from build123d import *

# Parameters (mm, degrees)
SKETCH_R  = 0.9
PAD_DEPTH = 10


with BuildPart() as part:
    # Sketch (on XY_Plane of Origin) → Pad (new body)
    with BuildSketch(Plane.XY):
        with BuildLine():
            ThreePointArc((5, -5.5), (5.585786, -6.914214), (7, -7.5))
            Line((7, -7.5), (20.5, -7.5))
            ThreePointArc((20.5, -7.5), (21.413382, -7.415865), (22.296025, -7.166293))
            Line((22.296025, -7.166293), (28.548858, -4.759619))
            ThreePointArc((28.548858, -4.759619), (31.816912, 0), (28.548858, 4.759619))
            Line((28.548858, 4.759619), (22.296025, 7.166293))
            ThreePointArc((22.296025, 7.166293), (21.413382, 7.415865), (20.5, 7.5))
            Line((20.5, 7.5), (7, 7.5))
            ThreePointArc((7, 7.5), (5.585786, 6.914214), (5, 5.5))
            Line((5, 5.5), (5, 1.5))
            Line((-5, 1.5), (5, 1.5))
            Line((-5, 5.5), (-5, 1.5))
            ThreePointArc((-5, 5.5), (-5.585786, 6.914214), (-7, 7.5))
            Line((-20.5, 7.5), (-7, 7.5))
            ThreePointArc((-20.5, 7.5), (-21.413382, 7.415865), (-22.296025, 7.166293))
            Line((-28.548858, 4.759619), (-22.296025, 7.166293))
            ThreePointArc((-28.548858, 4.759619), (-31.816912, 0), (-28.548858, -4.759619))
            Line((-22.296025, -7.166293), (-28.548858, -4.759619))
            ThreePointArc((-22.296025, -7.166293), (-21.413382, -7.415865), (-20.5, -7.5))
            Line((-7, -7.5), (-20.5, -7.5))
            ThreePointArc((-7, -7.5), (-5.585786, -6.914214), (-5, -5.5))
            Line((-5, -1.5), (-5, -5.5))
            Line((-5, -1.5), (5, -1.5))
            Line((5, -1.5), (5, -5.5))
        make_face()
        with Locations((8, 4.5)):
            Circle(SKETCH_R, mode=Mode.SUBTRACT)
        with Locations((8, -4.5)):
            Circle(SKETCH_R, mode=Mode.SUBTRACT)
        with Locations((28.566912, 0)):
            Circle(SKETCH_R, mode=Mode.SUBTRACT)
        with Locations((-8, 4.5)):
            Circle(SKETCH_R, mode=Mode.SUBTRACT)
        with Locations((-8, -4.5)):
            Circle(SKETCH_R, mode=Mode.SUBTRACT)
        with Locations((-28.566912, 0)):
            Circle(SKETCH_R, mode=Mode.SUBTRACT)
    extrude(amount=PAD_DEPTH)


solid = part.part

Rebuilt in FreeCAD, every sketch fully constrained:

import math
import FreeCAD as App
import Part
import Sketcher

doc = App.newDocument("Part")
body = doc.addObject("PartDesign::Body", "Body")

# Sketch on XY plane
sketch1 = body.newObject("Sketcher::SketchObject", "Sketch")
sketch1.AttachmentSupport = (doc.getObject("XY_Plane"), [""])
sketch1.MapMode = "FlatFace"
sketch1.addGeometry([
    Part.ArcOfCircle(Part.Circle(App.Vector(7, -5.5, 0), App.Vector(0, 0, 1), 2), math.radians(180), math.radians(270)),  # 0
    Part.LineSegment(App.Vector(7, -7.5, 0), App.Vector(20.5, -7.5, 0)),  # 1
    Part.ArcOfCircle(Part.Circle(App.Vector(20.5, -2.5, 0), App.Vector(0, 0, 1), 5), math.radians(-90), math.radians(-69)),  # 2
    Part.LineSegment(App.Vector(22.3, -7.2, 0), App.Vector(28.5, -4.8, 0)),  # 3
    Part.ArcOfCircle(Part.Circle(App.Vector(26.7, 0, 0), App.Vector(0, 0, 1), 5.1), math.radians(-69), math.radians(69)),  # 4
    Part.LineSegment(App.Vector(28.5, 4.8, 0), App.Vector(22.3, 7.2, 0)),  # 5
    Part.ArcOfCircle(Part.Circle(App.Vector(20.5, 2.5, 0), App.Vector(0, 0, 1), 5), math.radians(69), math.radians(90)),  # 6
    Part.LineSegment(App.Vector(20.5, 7.5, 0), App.Vector(7, 7.5, 0)),  # 7
    Part.ArcOfCircle(Part.Circle(App.Vector(7, 5.5, 0), App.Vector(0, 0, 1), 2), math.radians(90), math.radians(180)),  # 8
    Part.LineSegment(App.Vector(5, 5.5, 0), App.Vector(5, 1.5, 0)),  # 9
    Part.LineSegment(App.Vector(5, 1.5, 0), App.Vector(-5, 1.5, 0)),  # 10
    Part.LineSegment(App.Vector(-5, 1.5, 0), App.Vector(-5, 5.5, 0)),  # 11
    Part.ArcOfCircle(Part.Circle(App.Vector(-7, 5.5, 0), App.Vector(0, 0, 1), 2), math.radians(0), math.radians(90)),  # 12
    Part.LineSegment(App.Vector(-7, 7.5, 0), App.Vector(-20.5, 7.5, 0)),  # 13
    Part.ArcOfCircle(Part.Circle(App.Vector(-20.5, 2.5, 0), App.Vector(0, 0, 1), 5), math.radians(90), math.radians(111)),  # 14
    Part.LineSegment(App.Vector(-22.3, 7.2, 0), App.Vector(-28.5, 4.8, 0)),  # 15
    Part.ArcOfCircle(Part.Circle(App.Vector(-26.7, 0, 0), App.Vector(0, 0, 1), 5.1), math.radians(111), math.radians(249)),  # 16
    Part.LineSegment(App.Vector(-28.5, -4.8, 0), App.Vector(-22.3, -7.2, 0)),  # 17
    Part.ArcOfCircle(Part.Circle(App.Vector(-20.5, -2.5, 0), App.Vector(0, 0, 1), 5), math.radians(-111), math.radians(-90)),  # 18
    Part.LineSegment(App.Vector(-20.5, -7.5, 0), App.Vector(-7, -7.5, 0)),  # 19
    Part.ArcOfCircle(Part.Circle(App.Vector(-7, -5.5, 0), App.Vector(0, 0, 1), 2), math.radians(-90), math.radians(0)),  # 20
    Part.LineSegment(App.Vector(-5, -5.5, 0), App.Vector(-5, -1.5, 0)),  # 21
    Part.LineSegment(App.Vector(-5, -1.5, 0), App.Vector(5, -1.5, 0)),  # 22
    Part.LineSegment(App.Vector(5, -1.5, 0), App.Vector(5, -5.5, 0)),  # 23
    Part.Circle(App.Vector(-8, -4.5, 0), App.Vector(0, 0, 1), 0.9),  # 24
    Part.Circle(App.Vector(8, -4.5, 0), App.Vector(0, 0, 1), 0.9),  # 25
    Part.Circle(App.Vector(-28.6, 0, 0), App.Vector(0, 0, 1), 0.9),  # 26
    Part.Circle(App.Vector(-8, 4.5, 0), App.Vector(0, 0, 1), 0.9),  # 27
    Part.Circle(App.Vector(28.6, 0, 0), App.Vector(0, 0, 1), 0.9),  # 28
    Part.Circle(App.Vector(8, 4.5, 0), App.Vector(0, 0, 1), 0.9),  # 29
], False)
sketch1.addConstraint([
    Sketcher.Constraint("Tangent", 0, 2, 1, 1),
    Sketcher.Constraint("Tangent", 1, 2, 2, 1),
    Sketcher.Constraint("Tangent", 2, 2, 3, 1),
    Sketcher.Constraint("Tangent", 3, 2, 4, 1),
    Sketcher.Constraint("Tangent", 4, 2, 5, 1),
    Sketcher.Constraint("Tangent", 5, 2, 6, 1),
    Sketcher.Constraint("Tangent", 6, 2, 7, 1),
    Sketcher.Constraint("Tangent", 7, 2, 8, 1),
    Sketcher.Constraint("Tangent", 8, 2, 9, 1),
    Sketcher.Constraint("Coincident", 9, 2, 10, 1),
    Sketcher.Constraint("Coincident", 10, 2, 11, 1),
    Sketcher.Constraint("Tangent", 11, 2, 12, 1),
    Sketcher.Constraint("Tangent", 12, 2, 13, 1),
    Sketcher.Constraint("Tangent", 13, 2, 14, 1),
    Sketcher.Constraint("Tangent", 14, 2, 15, 1),
    Sketcher.Constraint("Tangent", 15, 2, 16, 1),
    Sketcher.Constraint("Tangent", 16, 2, 17, 1),
    Sketcher.Constraint("Tangent", 17, 2, 18, 1),
    Sketcher.Constraint("Tangent", 18, 2, 19, 1),
    Sketcher.Constraint("Tangent", 19, 2, 20, 1),
    Sketcher.Constraint("Tangent", 20, 2, 21, 1),
    Sketcher.Constraint("Coincident", 21, 2, 22, 1),
    Sketcher.Constraint("Coincident", 22, 2, 23, 1),
    Sketcher.Constraint("Tangent", 23, 2, 0, 1),
    Sketcher.Constraint("Horizontal", 1),
    Sketcher.Constraint("Horizontal", 7),
    Sketcher.Constraint("Vertical", 9),
    Sketcher.Constraint("Horizontal", 10),
    Sketcher.Constraint("Vertical", 11),
    Sketcher.Constraint("Horizontal", 13),
    Sketcher.Constraint("Horizontal", 19),
    Sketcher.Constraint("Vertical", 21),
    Sketcher.Constraint("Horizontal", 22),
    Sketcher.Constraint("Vertical", 23),
    Sketcher.Constraint("Equal", 2, 6),
    Sketcher.Constraint("Equal", 0, 8),
    Sketcher.Constraint("Equal", 8, 12),
    Sketcher.Constraint("Equal", 6, 14),
    Sketcher.Constraint("Equal", 4, 16),
    Sketcher.Constraint("Equal", 14, 18),
    Sketcher.Constraint("Equal", 12, 20),
    Sketcher.Constraint("Equal", 24, 25),
    Sketcher.Constraint("Equal", 25, 26),
    Sketcher.Constraint("Equal", 26, 27),
    Sketcher.Constraint("Equal", 27, 28),
    Sketcher.Constraint("Equal", 28, 29),
    Sketcher.Constraint("Symmetric", 0, 3, 12, 3, -1, 1),
    Sketcher.Constraint("Symmetric", 4, 3, 16, 3, -1, 1),
    Sketcher.Constraint("Symmetric", 6, 3, 18, 3, -1, 1),
    Sketcher.Constraint("Symmetric", 25, 3, 27, 3, -1, 1),
    Sketcher.Constraint("Symmetric", 26, 3, 28, 3, -1, 1),
    Sketcher.Constraint("Symmetric", 24, 3, 29, 3, -1, 1),
    Sketcher.Constraint("Symmetric", 9, 2, 21, 2, -1, 1),
    Sketcher.Constraint("Symmetric", 8, 3, 12, 3, -2),
    Sketcher.Constraint("Symmetric", 24, 3, 25, 3, -2),
    Sketcher.Constraint("Symmetric", 5, 2, 14, 2, -2),
    Sketcher.Constraint("PointOnObject", 26, 3, -1),
    Sketcher.Constraint("Parallel", 3, 15),
    Sketcher.Constraint("Radius", 0, 1.999999),
    Sketcher.Constraint("Diameter", 24, 1.8),
    Sketcher.Constraint("Radius", 4, 5.1),
    Sketcher.Constraint("DistanceX", 10, 2, 10, 1, 10.0),
    Sketcher.Constraint("DistanceY", 9, 2, 9, 1, 4.0),
    Sketcher.Constraint("DistanceX", 1, 1, 1, 2, 13.5),
    Sketcher.Constraint("DistanceX", 24, 3, -1, 1, 8.0),
    Sketcher.Constraint("DistanceY", 20, 3, 24, 3, 1.000001),
    Sketcher.Constraint("DistanceY", 24, 3, 12, 3, 10.000001),
    Sketcher.Constraint("Distance", 3, 6.7),
    Sketcher.Constraint("DistanceX", 26, 3, 16, 3, 1.85),
    Sketcher.Constraint("Radius", 2, 5.000016),
])
pad1 = body.newObject("PartDesign::Pad", "Pad")
pad1.Profile = sketch1
pad1.Length = 10

doc.recompute()
